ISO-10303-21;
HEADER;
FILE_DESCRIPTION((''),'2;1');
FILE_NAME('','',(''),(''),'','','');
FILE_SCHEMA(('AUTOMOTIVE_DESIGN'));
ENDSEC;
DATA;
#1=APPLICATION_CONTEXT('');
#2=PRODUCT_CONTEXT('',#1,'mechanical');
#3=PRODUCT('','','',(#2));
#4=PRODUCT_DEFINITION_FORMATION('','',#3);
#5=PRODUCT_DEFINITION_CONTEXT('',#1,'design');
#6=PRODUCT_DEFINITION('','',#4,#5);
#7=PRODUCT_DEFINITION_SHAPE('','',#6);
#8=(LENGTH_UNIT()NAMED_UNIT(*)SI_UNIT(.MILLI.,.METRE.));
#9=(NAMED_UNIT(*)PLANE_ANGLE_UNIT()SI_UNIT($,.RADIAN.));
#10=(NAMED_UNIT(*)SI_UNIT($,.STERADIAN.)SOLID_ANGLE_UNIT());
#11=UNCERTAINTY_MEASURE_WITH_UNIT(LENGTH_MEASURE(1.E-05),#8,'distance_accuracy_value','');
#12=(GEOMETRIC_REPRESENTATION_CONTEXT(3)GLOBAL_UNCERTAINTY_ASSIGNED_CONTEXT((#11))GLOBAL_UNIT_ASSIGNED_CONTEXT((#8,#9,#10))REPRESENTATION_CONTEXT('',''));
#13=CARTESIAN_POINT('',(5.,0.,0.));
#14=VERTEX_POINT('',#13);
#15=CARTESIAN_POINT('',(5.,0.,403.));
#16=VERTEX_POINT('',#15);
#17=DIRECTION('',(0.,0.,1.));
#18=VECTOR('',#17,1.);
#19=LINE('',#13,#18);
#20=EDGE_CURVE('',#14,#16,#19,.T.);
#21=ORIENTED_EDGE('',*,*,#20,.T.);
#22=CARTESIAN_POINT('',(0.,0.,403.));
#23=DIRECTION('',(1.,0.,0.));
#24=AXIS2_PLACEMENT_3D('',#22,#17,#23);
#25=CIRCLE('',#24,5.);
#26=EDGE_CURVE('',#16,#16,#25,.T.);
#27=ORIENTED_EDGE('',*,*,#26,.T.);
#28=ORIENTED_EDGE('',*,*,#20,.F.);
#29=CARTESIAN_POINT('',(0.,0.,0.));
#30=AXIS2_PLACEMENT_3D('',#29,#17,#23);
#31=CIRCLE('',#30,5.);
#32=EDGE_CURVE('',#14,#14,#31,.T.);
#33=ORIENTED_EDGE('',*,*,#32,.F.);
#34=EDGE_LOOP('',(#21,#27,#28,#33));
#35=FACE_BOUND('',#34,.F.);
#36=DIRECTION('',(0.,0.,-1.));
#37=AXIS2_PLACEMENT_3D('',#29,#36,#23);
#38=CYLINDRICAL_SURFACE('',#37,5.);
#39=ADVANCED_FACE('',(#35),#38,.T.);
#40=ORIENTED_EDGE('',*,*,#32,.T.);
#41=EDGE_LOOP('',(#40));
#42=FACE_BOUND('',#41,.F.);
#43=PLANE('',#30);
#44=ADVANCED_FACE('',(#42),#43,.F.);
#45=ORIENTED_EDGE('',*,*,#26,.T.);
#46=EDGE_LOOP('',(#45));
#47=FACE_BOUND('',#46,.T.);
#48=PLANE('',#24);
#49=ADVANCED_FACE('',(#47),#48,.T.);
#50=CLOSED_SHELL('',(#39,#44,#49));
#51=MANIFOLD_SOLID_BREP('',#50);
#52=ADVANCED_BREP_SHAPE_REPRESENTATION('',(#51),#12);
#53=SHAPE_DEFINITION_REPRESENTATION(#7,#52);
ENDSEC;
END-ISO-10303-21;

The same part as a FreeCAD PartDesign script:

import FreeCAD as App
import Part
import Sketcher

V = App.Vector
Q = App.Units.Quantity

doc = App.newDocument("Part")
body = doc.addObject("PartDesign::Body", "Body")

# Sketch on XY plane
sketch1 = body.newObject("Sketcher::SketchObject", "Sketch")
sketch1.AttachmentSupport = (doc.getObject("XY_Plane"), [""])
sketch1.MapMode = "FlatFace"
sketch1.addGeometry(Part.Circle(V(0, 0, 0), V(0, 0, 1), 5), False)
sketch1.addConstraint([
    Sketcher.Constraint("Coincident", 0, 3, -1, 1),
    Sketcher.Constraint("Diameter", 0, Q("10 mm")),
])
pad1 = body.newObject("PartDesign::Pad", "Pad")
pad1.Profile = sketch1
pad1.Length = 403

doc.recompute()
